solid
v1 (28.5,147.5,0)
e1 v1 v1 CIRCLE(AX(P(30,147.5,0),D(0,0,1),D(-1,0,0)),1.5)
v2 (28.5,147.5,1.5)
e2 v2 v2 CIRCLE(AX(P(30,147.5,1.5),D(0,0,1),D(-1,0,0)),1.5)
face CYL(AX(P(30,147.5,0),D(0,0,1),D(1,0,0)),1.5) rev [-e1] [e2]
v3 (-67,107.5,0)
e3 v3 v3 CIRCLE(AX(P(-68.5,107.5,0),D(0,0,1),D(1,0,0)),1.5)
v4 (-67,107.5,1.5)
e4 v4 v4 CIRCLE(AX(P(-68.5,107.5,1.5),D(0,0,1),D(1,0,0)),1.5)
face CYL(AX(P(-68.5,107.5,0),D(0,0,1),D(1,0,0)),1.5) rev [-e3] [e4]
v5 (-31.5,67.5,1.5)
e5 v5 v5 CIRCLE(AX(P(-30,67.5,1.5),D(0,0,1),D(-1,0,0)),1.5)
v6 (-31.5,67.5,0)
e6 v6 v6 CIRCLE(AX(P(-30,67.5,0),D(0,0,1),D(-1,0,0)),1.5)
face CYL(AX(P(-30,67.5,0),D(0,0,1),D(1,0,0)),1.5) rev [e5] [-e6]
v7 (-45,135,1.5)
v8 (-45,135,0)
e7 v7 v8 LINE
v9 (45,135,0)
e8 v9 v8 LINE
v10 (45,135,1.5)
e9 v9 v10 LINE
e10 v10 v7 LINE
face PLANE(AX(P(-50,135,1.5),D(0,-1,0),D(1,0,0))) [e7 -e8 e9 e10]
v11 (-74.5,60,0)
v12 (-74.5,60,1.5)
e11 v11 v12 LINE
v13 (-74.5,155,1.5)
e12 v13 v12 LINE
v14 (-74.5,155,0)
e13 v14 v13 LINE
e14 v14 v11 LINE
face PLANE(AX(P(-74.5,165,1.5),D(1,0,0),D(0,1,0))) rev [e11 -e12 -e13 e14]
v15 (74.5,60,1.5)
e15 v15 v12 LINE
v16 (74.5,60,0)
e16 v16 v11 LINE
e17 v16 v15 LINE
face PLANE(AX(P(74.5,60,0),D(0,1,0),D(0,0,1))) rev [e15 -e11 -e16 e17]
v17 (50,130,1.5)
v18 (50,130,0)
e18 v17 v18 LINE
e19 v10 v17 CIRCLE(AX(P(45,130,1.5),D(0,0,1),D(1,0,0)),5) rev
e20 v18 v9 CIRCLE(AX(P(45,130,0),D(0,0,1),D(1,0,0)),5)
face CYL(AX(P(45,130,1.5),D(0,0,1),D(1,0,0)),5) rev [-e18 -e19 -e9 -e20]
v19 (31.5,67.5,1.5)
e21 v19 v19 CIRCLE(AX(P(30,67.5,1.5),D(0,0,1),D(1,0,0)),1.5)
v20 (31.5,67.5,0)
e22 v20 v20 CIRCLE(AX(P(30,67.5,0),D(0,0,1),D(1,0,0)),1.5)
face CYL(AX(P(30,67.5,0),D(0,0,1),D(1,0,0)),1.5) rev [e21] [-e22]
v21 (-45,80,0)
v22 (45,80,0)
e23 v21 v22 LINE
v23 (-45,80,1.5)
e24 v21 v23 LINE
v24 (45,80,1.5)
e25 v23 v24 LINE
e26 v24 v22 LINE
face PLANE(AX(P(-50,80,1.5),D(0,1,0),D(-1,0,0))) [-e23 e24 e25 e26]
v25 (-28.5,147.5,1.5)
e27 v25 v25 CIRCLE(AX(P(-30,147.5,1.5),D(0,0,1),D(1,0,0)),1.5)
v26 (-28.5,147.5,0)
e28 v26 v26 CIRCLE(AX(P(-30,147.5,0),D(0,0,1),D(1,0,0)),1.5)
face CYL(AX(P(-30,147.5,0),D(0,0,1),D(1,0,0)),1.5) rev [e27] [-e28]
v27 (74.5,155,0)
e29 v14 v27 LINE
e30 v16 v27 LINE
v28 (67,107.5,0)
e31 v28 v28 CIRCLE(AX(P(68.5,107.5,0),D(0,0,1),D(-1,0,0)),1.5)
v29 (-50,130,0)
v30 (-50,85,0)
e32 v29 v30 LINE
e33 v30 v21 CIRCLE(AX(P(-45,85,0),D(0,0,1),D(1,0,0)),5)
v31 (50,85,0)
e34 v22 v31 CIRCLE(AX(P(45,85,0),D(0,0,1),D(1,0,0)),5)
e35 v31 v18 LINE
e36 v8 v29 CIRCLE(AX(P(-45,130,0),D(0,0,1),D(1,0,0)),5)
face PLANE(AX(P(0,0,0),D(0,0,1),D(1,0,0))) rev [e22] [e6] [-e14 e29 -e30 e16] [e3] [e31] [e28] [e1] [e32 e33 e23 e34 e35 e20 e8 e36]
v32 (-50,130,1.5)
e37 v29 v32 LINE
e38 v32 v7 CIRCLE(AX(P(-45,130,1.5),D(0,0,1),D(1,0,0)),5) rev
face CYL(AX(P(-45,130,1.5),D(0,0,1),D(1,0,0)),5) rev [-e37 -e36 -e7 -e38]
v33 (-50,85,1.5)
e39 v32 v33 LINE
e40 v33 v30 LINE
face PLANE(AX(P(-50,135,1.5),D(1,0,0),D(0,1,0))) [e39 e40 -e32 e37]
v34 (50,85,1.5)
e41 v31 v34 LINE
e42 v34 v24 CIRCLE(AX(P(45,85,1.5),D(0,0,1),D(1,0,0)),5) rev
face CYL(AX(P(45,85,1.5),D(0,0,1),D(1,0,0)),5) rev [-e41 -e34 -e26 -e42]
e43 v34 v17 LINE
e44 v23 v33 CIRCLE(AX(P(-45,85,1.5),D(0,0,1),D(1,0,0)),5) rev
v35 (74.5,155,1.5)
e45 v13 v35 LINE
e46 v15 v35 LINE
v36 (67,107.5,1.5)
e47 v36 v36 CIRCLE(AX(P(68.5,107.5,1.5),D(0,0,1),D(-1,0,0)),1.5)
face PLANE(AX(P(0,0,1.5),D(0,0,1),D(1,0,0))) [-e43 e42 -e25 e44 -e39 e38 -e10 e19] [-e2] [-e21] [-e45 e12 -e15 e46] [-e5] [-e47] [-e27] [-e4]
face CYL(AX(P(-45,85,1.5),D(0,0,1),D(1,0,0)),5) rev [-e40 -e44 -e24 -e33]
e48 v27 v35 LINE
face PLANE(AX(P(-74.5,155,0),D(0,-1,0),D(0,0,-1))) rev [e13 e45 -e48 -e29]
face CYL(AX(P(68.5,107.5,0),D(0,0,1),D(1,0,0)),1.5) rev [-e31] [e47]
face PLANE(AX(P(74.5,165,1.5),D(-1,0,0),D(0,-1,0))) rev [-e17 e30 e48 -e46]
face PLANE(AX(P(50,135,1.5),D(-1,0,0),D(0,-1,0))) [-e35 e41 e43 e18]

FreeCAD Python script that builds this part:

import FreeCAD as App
import Part
import Sketcher

V = App.Vector


def edges_at(feature, points):
    """Names of the edges that pass closest to the given points."""
    edges = feature.Shape.Edges
    near = lambda p: min(range(len(edges)), key=lambda i: edges[i].distToShape(Part.Vertex(*p))[0])
    return sorted({f"Edge{near(p) + 1}" for p in points})


def add_polygon(sketch, points):
    """Adds a closed chain of lines whose ends are joined by coincident constraints."""
    first, n = sketch.GeometryCount, len(points)
    for a, b in zip(points, points[1:] + points[:1]):
        sketch.addGeometry(Part.LineSegment(App.Vector(*a, 0), App.Vector(*b, 0)), False)
    for i in range(n):
        sketch.addConstraint(Sketcher.Constraint("Coincident", first + i, 2, first + (i + 1) % n, 1))

doc = App.newDocument("Part")
params = doc.addObject("Spreadsheet::Sheet", "Params")
for row, (alias, value) in enumerate([
    ("sketch1_width", "149 mm"),
    ("sketch1_width2", "100 mm"),
    ("sketch1_height", "165 mm"),
    ("sketch1_height2", "55 mm"),
    ("pad1_length", "1.5 mm"),
    ("fillet_radius", "5 mm"),
    ("sketch2_diameter", "3 mm"),
    ("sketch3_diameter", "3 mm"),
    ("sketch3_width", "149 mm"),
    ("sketch3_height", "10 mm"),
    ("sketch3_height2", "60 mm"),
], start=1):
    params.set(f"A{row}", alias)
    params.set(f"B{row}", "=" + value)
    params.setAlias(f"B{row}", alias)

body = doc.addObject("PartDesign::Body", "Body")

# Sketch on XY plane
sketch1 = body.newObject("Sketcher::SketchObject", "Sketch")
sketch1.AttachmentSupport = (doc.getObject("XY_Plane"), [""])
sketch1.MapMode = "FlatFace"
add_polygon(sketch1, [(-74, 165), (-74, 0), (74, 0), (74, 165)])  # lines 0-3
add_polygon(sketch1, [(50, 80), (-50, 80), (-50, 135), (50, 135)])  # lines 4-7
sketch1.addConstraint(Sketcher.Constraint("Vertical", 0))
sketch1.addConstraint(Sketcher.Constraint("Horizontal", 1))
sketch1.addConstraint(Sketcher.Constraint("Vertical", 2))
sketch1.addConstraint(Sketcher.Constraint("Horizontal", 3))
sketch1.addConstraint(Sketcher.Constraint("Horizontal", 4))
sketch1.addConstraint(Sketcher.Constraint("Vertical", 5))
sketch1.addConstraint(Sketcher.Constraint("Horizontal", 6))
sketch1.addConstraint(Sketcher.Constraint("Vertical", 7))
sketch1.addConstraint(Sketcher.Constraint("Symmetric", 0, 2, 1, 2, -1, 1))
sketch1.addConstraint(Sketcher.Constraint("DistanceX", 1, 1, 1, 2, 149.0))
sketch1.addConstraint(Sketcher.Constraint("DistanceX", 4, 2, 4, 1, 100.0))
sketch1.addConstraint(Sketcher.Constraint("DistanceY", 0, 2, 0, 1, 165.0))
sketch1.addConstraint(Sketcher.Constraint("DistanceY", 5, 1, 5, 2, 55.0))
sketch1.addConstraint(Sketcher.Constraint("DistanceX", 4, 2, -1, 1, 50.0))
sketch1.addConstraint(Sketcher.Constraint("DistanceY", -1, 1, 4, 2, 80.0))
sketch1.setExpression("Constraints[17]", "Params.sketch1_width")
sketch1.setExpression("Constraints[18]", "Params.sketch1_width2")
sketch1.setExpression("Constraints[19]", "Params.sketch1_height")
sketch1.setExpression("Constraints[20]", "Params.sketch1_height2")
pad1 = body.newObject("PartDesign::Pad", "Pad")
pad1.Profile = sketch1
pad1.setExpression("Length", "Params.pad1_length")
doc.recompute()

fillet = body.newObject("PartDesign::Fillet", "Fillet")
fillet.Base = (pad1, edges_at(pad1, [
    (-50, 135, 0.75),
    (-50, 80, 0.75),
    (50, 80, 0.75),
    (50, 135, 0.75),
]))
fillet.setExpression("Radius", "Params.fillet_radius")

# Sketch on XY plane
sketch2 = body.newObject("Sketcher::SketchObject", "Sketch001")
sketch2.AttachmentSupport = (doc.getObject("XY_Plane"), [""])
sketch2.MapMode = "FlatFace"
sketch2.AttachmentOffset = App.Placement(V(0, 0, 1.5), App.Rotation())
sketch2.addGeometry(Part.Circle(V(-30, 147.5, 0), V(0, 0, 1), 1.5), False)
sketch2.addGeometry(Part.Circle(V(-30, 67.5, 0), V(0, 0, 1), 1.5), False)
sketch2.addGeometry(Part.Circle(V(30, 67.5, 0), V(0, 0, 1), 1.5), False)
sketch2.addGeometry(Part.Circle(V(30, 147.5, 0), V(0, 0, 1), 1.5), False)
sketch2.addGeometry(Part.Circle(V(-55, 160, 0), V(0, 0, 1), 1.5), False)
sketch2.addGeometry(Part.Circle(V(-55, 5, 0), V(0, 0, 1), 1.5), False)
sketch2.addGeometry(Part.Circle(V(55, 5, 0), V(0, 0, 1), 1.5), False)
sketch2.addGeometry(Part.Circle(V(55, 160, 0), V(0, 0, 1), 1.5), False)
sketch2.addConstraint(Sketcher.Constraint("Equal", 0, 1))
sketch2.addConstraint(Sketcher.Constraint("Equal", 1, 2))
sketch2.addConstraint(Sketcher.Constraint("Equal", 2, 3))
sketch2.addConstraint(Sketcher.Constraint("Equal", 3, 4))
sketch2.addConstraint(Sketcher.Constraint("Equal", 4, 5))
sketch2.addConstraint(Sketcher.Constraint("Equal", 5, 6))
sketch2.addConstraint(Sketcher.Constraint("Equal", 6, 7))
sketch2.addConstraint(Sketcher.Constraint("Symmetric", 1, 3, 2, 3, -2))
sketch2.addConstraint(Sketcher.Constraint("Symmetric", 0, 3, 3, 3, -2))
sketch2.addConstraint(Sketcher.Constraint("Symmetric", 5, 3, 6, 3, -2))
sketch2.addConstraint(Sketcher.Constraint("Symmetric", 4, 3, 7, 3, -2))
sketch2.addConstraint(Sketcher.Constraint("Vertical", 0, 3, 1, 3))
sketch2.addConstraint(Sketcher.Constraint("Vertical", 4, 3, 5, 3))
sketch2.addConstraint(Sketcher.Constraint("Diameter", 0, 3.0))
sketch2.addConstraint(Sketcher.Constraint("DistanceX", 0, 3, -1, 1, 30.0))
sketch2.addConstraint(Sketcher.Constraint("DistanceX", 4, 3, -1, 1, 55.0))
sketch2.addConstraint(Sketcher.Constraint("DistanceY", -1, 1, 4, 3, 160.0))
sketch2.addConstraint(Sketcher.Constraint("DistanceY", -1, 1, 5, 3, 5.0))
sketch2.addConstraint(Sketcher.Constraint("DistanceY", 1, 3, 0, 3, 80.0))
sketch2.addConstraint(Sketcher.Constraint("DistanceY", -1, 1, 0, 3, 147.5))
sketch2.setExpression("Constraints[13]", "Params.sketch2_diameter")
pocket1 = body.newObject("PartDesign::Pocket", "Pocket")
pocket1.Profile = sketch2
pocket1.Type = "ThroughAll"

# Sketch on XY plane
sketch3 = body.newObject("Sketcher::SketchObject", "Sketch002")
sketch3.AttachmentSupport = (doc.getObject("XY_Plane"), [""])
sketch3.MapMode = "FlatFace"
sketch3.AttachmentOffset = App.Placement(V(0, 0, 1.5), App.Rotation())
sketch3.addGeometry(Part.Circle(V(-68.5, 107.5, 0), V(0, 0, 1), 1.5), False)  # 0
sketch3.addGeometry(Part.Circle(V(68.5, 107.5, 0), V(0, 0, 1), 1.5), False)  # 1
add_polygon(sketch3, [(-74.5, 165), (-74.5, 155), (74.5, 155), (74.5, 165)])  # lines 2-5
add_polygon(sketch3, [(-74.5, 60), (-74.5, 0), (74.5, 0), (74.5, 60)])  # lines 6-9
sketch3.addConstraint(Sketcher.Constraint("Vertical", 2))
sketch3.addConstraint(Sketcher.Constraint("Horizontal", 3))
sketch3.addConstraint(Sketcher.Constraint("Vertical", 4))
sketch3.addConstraint(Sketcher.Constraint("Horizontal", 5))
sketch3.addConstraint(Sketcher.Constraint("Vertical", 6))
sketch3.addConstraint(Sketcher.Constraint("Horizontal", 7))
sketch3.addConstraint(Sketcher.Constraint("Vertical", 8))
sketch3.addConstraint(Sketcher.Constraint("Horizontal", 9))
sketch3.addConstraint(Sketcher.Constraint("Equal", 0, 1))
sketch3.addConstraint(Sketcher.Constraint("Symmetric", 6, 2, 7, 2, -1, 1))
sketch3.addConstraint(Sketcher.Constraint("Symmetric", 0, 3, 1, 3, -2))
sketch3.addConstraint(Sketcher.Constraint("Vertical", 5, 2, 6, 2))
sketch3.addConstraint(Sketcher.Constraint("Vertical", 4, 2, 7, 2))
sketch3.addConstraint(Sketcher.Constraint("Diameter", 0, 3.0))
sketch3.addConstraint(Sketcher.Constraint("DistanceX", 3, 1, 3, 2, 149.0))
sketch3.addConstraint(Sketcher.Constraint("DistanceY", 2, 2, 2, 1, 10.0))
sketch3.addConstraint(Sketcher.Constraint("DistanceY", 6, 2, 6, 1, 60.0))
sketch3.addConstraint(Sketcher.Constraint("DistanceY", -1, 1, 2, 2, 155.0))
sketch3.addConstraint(Sketcher.Constraint("DistanceX", 0, 3, 1, 3, 137.0))
sketch3.addConstraint(Sketcher.Constraint("DistanceY", -1, 1, 0, 3, 107.5))
sketch3.setExpression("Constraints[21]", "Params.sketch3_diameter")
sketch3.setExpression("Constraints[22]", "Params.sketch3_width")
sketch3.setExpression("Constraints[23]", "Params.sketch3_height")
sketch3.setExpression("Constraints[24]", "Params.sketch3_height2")
pocket2 = body.newObject("PartDesign::Pocket", "Pocket001")
pocket2.Profile = sketch3
pocket2.Type = "ThroughAll"

doc.recompute()
